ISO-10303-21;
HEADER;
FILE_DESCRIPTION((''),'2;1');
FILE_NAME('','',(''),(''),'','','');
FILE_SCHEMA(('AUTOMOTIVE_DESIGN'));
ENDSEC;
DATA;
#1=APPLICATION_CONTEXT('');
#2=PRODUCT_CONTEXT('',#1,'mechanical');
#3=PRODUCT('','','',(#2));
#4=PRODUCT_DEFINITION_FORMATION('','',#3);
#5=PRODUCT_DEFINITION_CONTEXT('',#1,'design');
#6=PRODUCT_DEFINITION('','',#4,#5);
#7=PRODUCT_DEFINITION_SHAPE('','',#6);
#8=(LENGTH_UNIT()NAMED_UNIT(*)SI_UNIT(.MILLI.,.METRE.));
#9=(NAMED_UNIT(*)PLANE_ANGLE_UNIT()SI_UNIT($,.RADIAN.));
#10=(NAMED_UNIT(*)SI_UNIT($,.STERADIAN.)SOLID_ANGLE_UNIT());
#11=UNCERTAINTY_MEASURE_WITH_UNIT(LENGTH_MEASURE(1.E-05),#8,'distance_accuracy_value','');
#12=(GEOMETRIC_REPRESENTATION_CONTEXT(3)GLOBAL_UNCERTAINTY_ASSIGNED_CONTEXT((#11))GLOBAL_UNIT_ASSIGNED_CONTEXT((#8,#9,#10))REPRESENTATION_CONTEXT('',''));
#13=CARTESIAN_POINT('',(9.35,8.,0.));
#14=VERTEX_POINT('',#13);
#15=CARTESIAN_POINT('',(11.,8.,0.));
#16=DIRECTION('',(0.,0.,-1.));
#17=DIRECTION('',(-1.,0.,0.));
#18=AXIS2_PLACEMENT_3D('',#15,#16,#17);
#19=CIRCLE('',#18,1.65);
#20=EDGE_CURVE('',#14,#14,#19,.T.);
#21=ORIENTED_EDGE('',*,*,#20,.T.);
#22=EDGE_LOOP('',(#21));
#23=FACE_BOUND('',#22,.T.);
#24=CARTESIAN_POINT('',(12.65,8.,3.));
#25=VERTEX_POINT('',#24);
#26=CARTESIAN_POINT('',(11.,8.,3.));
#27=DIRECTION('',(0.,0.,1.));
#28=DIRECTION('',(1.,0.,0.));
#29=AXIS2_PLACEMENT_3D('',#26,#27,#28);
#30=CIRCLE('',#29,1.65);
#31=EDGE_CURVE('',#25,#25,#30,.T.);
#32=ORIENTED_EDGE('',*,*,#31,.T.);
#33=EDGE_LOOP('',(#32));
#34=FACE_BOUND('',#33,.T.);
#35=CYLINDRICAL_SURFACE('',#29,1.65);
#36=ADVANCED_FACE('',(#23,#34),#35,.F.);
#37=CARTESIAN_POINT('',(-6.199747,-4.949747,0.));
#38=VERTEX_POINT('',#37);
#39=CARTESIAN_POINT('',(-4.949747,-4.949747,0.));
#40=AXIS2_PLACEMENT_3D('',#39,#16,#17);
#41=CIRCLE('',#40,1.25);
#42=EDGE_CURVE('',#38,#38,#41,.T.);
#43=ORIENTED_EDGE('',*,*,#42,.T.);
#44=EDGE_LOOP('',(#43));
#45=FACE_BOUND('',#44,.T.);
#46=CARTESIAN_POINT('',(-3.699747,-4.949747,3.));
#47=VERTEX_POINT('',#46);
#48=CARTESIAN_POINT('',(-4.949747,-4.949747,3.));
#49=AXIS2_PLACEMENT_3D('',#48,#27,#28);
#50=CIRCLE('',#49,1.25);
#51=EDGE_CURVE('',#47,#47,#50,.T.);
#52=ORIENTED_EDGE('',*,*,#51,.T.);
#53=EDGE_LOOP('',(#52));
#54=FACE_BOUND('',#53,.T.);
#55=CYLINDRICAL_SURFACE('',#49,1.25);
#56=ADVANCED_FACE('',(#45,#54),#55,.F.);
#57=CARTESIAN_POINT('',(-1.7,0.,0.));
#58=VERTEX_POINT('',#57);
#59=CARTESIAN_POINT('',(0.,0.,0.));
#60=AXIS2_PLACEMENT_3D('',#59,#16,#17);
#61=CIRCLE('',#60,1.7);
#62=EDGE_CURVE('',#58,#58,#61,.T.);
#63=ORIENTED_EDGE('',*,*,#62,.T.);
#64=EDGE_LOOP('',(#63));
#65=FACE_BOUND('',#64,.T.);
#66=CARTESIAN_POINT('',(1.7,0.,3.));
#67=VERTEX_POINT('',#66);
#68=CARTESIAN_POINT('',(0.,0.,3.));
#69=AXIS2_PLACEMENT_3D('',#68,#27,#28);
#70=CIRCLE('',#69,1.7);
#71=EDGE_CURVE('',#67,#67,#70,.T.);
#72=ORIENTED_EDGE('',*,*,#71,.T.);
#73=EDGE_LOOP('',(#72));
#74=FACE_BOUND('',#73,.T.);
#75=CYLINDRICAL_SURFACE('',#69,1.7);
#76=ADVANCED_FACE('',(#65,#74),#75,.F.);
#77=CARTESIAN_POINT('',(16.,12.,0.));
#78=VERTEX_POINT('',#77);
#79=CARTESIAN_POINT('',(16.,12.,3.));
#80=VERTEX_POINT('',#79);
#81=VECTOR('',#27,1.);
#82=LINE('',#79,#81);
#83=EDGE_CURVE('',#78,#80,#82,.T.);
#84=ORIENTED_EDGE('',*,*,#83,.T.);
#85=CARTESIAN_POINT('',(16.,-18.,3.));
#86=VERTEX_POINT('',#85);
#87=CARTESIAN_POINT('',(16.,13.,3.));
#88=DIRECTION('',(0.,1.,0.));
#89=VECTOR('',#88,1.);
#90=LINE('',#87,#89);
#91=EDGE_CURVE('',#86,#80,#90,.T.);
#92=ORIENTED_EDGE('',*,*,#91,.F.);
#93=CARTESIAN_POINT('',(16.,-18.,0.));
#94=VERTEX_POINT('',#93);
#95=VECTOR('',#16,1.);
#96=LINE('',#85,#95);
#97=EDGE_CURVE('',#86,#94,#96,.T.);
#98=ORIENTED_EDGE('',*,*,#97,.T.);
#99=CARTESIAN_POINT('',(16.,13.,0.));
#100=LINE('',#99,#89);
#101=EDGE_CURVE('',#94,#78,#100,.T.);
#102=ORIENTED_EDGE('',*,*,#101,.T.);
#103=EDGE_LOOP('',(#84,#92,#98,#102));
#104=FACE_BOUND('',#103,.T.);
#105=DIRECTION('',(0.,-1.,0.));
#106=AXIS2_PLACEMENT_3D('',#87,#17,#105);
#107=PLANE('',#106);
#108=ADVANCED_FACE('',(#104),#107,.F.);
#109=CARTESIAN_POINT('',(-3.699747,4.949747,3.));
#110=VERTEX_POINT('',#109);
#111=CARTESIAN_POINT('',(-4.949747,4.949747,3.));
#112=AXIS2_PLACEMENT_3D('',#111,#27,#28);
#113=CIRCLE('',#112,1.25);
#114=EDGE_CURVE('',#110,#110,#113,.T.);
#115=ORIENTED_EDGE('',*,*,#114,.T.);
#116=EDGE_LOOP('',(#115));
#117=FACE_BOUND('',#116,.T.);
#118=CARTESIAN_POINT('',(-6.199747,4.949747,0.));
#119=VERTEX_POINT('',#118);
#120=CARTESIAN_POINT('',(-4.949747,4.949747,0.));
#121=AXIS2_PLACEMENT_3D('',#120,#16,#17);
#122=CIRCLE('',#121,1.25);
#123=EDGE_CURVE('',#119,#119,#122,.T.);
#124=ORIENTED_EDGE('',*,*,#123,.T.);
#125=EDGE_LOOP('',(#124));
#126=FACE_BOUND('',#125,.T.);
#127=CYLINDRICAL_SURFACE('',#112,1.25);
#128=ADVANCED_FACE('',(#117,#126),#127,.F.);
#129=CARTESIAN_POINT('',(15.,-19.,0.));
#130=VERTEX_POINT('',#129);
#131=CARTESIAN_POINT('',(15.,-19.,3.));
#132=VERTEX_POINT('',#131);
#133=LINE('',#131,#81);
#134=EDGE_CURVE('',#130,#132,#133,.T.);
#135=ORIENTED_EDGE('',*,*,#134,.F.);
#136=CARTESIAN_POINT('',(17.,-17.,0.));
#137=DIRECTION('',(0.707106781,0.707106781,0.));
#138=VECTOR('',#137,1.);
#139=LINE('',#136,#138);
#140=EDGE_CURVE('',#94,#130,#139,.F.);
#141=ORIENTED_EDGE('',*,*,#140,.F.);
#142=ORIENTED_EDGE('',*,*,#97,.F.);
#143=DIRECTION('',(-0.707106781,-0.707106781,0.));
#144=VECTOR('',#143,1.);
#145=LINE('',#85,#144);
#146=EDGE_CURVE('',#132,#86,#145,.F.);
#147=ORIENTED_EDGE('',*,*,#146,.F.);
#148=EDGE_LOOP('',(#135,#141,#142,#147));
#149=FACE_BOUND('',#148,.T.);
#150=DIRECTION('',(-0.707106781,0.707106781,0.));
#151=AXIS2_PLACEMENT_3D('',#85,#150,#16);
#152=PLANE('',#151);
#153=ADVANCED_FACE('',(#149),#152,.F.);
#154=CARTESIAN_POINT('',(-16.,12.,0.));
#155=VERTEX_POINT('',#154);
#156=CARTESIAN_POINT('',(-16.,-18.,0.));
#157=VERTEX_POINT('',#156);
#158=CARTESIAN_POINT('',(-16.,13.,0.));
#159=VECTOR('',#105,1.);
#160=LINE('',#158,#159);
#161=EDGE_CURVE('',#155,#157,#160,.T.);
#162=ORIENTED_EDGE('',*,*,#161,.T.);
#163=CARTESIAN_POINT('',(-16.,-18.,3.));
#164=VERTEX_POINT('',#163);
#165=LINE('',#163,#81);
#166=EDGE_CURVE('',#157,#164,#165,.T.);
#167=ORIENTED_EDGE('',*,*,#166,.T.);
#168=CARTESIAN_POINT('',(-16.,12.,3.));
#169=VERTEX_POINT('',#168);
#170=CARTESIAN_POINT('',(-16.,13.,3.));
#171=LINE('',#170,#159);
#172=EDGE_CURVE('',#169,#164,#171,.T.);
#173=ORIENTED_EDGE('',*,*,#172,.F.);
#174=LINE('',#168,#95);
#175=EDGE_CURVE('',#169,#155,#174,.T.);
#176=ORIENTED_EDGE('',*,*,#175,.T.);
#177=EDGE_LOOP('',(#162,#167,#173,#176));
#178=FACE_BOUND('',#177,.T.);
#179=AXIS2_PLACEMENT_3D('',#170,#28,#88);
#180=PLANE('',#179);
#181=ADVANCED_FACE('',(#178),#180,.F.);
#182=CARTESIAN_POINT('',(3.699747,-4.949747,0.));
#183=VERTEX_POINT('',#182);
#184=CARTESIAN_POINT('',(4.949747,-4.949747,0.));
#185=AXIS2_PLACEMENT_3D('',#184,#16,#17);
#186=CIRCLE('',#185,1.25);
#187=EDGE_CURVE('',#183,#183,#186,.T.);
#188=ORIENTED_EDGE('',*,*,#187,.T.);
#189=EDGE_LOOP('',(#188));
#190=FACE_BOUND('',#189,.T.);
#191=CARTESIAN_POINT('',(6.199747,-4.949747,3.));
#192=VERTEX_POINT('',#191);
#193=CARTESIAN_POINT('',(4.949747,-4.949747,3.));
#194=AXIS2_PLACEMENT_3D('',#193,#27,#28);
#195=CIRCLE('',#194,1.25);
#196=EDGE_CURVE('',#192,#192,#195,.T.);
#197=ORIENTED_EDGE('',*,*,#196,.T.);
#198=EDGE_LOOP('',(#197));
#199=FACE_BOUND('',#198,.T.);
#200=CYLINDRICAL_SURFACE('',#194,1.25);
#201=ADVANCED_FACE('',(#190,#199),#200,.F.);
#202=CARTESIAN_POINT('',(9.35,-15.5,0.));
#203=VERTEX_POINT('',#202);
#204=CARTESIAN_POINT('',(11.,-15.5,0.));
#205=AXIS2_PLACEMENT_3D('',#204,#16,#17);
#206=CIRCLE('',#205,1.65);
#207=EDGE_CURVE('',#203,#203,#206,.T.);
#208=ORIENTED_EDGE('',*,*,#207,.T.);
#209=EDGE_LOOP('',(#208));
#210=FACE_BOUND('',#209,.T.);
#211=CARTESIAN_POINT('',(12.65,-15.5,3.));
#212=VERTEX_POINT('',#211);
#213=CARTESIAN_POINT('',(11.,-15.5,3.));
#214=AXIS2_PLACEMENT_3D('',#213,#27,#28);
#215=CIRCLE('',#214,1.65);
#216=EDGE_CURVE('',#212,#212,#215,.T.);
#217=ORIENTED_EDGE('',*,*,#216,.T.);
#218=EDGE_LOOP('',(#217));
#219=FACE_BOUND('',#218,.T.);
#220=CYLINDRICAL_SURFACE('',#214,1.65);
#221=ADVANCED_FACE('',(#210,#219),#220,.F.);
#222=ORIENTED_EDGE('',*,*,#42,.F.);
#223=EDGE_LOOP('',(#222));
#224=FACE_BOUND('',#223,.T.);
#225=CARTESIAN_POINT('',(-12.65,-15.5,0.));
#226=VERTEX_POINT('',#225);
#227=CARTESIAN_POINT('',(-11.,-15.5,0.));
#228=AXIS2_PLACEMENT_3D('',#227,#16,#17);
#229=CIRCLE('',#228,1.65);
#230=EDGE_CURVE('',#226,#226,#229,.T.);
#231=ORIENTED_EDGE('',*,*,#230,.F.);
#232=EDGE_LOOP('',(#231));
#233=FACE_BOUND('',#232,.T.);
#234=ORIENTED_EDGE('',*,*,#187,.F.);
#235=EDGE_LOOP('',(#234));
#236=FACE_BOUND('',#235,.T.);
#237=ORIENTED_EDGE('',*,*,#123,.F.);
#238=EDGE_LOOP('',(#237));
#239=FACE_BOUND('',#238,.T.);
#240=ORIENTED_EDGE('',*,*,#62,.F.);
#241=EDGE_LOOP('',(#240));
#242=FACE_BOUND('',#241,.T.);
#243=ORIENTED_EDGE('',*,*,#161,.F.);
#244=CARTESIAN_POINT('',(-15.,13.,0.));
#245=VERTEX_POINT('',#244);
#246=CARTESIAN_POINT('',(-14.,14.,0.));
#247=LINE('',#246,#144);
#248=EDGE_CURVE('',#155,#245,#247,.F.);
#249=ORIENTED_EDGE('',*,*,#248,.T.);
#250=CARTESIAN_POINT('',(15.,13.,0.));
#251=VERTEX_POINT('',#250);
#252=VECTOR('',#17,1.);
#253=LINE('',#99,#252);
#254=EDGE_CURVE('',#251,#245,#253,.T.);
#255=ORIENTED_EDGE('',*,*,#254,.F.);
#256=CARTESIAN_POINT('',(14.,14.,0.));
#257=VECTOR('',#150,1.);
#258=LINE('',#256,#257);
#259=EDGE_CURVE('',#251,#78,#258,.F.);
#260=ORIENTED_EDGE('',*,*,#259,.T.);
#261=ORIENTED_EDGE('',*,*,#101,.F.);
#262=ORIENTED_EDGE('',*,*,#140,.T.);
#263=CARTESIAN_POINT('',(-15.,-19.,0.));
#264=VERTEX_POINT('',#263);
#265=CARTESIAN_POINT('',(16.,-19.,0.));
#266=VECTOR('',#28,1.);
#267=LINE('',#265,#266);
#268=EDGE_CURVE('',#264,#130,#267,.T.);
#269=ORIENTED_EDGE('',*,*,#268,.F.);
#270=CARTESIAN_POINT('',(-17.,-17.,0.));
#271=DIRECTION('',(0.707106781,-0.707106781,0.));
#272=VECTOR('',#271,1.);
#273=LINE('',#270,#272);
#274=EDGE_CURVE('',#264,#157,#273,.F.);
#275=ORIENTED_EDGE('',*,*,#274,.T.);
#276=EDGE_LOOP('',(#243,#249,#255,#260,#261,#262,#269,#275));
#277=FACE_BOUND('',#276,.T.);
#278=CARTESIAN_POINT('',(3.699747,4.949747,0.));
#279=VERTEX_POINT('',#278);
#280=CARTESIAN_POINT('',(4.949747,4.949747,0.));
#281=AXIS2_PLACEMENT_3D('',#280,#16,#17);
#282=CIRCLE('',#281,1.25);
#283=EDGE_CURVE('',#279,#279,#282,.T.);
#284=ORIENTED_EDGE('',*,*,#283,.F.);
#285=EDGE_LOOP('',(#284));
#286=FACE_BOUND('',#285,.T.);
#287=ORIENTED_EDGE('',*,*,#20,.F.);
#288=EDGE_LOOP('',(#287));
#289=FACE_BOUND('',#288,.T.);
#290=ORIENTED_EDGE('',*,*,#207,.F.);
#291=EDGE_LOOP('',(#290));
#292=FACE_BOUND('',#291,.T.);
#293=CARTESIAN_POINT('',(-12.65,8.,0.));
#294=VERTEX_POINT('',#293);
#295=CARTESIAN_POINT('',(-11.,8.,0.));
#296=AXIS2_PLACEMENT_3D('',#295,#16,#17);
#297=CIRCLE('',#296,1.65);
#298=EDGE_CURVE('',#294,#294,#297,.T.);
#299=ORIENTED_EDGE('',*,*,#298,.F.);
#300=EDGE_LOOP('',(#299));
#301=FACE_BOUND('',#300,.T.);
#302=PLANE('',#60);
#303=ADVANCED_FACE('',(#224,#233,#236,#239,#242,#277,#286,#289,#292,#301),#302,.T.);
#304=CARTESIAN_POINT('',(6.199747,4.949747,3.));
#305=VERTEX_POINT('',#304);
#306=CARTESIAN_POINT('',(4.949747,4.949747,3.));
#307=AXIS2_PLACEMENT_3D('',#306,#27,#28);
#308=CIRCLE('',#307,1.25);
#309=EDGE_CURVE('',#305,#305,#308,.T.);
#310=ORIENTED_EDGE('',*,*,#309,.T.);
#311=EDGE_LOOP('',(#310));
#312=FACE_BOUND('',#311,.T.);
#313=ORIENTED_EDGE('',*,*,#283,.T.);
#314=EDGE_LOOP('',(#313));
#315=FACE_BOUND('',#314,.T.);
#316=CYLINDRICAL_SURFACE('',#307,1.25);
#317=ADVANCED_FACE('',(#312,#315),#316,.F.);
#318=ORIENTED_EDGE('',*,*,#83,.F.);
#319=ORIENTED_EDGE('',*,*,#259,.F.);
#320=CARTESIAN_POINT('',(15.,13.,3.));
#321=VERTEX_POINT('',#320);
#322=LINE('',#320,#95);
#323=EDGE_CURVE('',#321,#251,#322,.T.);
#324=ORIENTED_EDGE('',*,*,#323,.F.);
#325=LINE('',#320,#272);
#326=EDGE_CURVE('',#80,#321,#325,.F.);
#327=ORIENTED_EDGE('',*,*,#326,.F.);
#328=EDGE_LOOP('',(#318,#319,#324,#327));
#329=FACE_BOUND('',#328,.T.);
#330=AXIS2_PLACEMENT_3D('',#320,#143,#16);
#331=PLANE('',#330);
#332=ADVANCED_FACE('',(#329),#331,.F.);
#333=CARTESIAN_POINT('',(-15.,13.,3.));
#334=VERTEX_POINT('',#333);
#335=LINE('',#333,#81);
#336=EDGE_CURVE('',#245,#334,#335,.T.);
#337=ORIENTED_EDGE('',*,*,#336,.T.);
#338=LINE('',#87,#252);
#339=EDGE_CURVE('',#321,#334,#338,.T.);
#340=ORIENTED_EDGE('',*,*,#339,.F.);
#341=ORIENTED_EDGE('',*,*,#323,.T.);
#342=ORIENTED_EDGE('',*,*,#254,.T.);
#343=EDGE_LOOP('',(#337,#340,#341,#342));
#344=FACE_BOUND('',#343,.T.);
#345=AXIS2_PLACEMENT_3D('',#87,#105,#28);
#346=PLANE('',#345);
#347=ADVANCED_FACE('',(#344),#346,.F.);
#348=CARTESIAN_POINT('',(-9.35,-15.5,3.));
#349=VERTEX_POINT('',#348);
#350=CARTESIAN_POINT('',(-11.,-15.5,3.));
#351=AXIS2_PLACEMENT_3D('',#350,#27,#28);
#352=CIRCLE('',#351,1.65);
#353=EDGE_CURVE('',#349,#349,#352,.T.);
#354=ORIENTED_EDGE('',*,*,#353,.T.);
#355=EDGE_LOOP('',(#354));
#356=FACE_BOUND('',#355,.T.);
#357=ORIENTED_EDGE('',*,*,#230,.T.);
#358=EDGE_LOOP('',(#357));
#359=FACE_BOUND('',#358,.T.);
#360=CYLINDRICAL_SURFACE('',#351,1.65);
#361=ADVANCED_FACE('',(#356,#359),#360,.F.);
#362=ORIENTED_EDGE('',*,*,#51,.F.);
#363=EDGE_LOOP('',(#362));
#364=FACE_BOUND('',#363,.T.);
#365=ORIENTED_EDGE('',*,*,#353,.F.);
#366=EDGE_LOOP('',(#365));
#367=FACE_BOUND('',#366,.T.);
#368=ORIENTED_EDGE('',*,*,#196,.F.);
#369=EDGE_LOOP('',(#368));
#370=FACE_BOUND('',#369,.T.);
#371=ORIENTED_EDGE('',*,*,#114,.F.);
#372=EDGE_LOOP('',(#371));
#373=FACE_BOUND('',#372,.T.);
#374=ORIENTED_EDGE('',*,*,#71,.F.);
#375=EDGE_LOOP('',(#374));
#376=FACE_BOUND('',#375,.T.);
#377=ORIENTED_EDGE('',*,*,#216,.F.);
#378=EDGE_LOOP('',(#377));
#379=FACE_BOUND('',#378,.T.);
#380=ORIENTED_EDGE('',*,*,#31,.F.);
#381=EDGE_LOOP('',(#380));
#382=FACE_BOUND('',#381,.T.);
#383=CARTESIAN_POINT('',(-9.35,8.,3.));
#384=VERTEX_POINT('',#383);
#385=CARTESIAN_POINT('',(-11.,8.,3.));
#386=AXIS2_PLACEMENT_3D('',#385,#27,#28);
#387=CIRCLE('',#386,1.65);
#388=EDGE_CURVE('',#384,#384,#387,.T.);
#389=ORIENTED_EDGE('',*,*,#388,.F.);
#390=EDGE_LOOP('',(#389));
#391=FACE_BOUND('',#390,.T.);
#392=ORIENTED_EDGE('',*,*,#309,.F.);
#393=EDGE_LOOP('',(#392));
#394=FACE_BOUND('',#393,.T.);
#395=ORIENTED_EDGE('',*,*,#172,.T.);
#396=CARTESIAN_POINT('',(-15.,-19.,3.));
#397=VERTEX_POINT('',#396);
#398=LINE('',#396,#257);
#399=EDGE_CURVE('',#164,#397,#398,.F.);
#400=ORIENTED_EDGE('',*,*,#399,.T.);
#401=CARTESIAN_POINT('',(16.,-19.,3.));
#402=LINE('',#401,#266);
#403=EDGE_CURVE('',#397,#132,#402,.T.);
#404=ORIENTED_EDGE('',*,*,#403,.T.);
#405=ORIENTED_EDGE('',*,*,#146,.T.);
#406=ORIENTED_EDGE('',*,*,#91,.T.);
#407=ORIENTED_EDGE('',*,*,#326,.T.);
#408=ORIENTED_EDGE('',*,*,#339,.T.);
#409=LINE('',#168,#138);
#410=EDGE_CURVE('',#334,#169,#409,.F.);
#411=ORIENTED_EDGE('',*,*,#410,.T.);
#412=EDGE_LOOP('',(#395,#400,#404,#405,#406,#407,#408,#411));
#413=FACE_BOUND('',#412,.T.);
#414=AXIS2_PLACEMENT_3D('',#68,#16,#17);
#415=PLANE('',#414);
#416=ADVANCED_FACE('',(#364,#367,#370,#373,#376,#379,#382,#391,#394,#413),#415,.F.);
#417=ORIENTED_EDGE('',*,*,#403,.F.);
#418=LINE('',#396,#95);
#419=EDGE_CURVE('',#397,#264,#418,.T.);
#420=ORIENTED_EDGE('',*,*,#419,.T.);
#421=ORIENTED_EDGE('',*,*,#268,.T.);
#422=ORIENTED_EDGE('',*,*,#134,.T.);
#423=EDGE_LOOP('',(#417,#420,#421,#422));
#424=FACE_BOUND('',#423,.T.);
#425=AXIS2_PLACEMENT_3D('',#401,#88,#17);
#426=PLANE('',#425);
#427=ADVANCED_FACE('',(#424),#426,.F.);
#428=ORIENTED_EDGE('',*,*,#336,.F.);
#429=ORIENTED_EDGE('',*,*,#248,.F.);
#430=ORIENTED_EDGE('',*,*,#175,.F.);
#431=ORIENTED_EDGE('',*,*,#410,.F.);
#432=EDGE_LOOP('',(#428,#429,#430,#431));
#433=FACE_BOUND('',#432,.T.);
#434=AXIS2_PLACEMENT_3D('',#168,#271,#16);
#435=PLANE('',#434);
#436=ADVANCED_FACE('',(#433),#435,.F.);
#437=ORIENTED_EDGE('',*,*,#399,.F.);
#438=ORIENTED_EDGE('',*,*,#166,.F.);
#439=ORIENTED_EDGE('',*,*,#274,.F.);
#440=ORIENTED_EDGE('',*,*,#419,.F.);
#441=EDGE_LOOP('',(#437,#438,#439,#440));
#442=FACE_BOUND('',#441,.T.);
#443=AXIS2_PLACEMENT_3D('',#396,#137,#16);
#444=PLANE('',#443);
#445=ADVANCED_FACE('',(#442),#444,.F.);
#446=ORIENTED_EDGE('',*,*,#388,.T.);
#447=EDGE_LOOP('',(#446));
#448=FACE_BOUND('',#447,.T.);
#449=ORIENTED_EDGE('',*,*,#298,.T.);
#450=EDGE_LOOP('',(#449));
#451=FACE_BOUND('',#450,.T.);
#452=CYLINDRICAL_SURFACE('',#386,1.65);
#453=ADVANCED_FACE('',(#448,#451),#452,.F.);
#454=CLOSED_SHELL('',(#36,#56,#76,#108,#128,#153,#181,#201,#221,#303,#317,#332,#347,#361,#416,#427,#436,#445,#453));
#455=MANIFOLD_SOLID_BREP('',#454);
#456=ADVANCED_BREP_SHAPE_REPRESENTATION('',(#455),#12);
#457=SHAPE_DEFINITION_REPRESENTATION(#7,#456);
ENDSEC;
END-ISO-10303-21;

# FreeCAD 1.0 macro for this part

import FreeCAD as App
import Part
import Sketcher
Q = App.Units.Quantity


def edges_at(feature, points):
    """Names of the edges that pass closest to the given points."""
    edges = feature.Shape.Edges
    near = lambda p: min(range(len(edges)), key=lambda i: edges[i].distToShape(Part.Vertex(*p))[0])
    return sorted({f"Edge{near(p) + 1}" for p in points})


def add_polygon(sketch, points):
    """Adds a closed chain of lines whose ends are joined by coincident constraints."""
    first, n = sketch.GeometryCount, len(points)
    for a, b in zip(points, points[1:] + points[:1]):
        sketch.addGeometry(Part.LineSegment(App.Vector(*a, 0), App.Vector(*b, 0)), False)
    for i in range(n):
        sketch.addConstraint(Sketcher.Constraint("Coincident", first + i, 2, first + (i + 1) % n, 1))

doc = App.newDocument("Part")
body = doc.addObject("PartDesign::Body", "Body")

sketch1 = body.newObject("Sketcher::SketchObject", "Sketch")
sketch1.AttachmentSupport = (doc.getObject("XY_Plane"), [""])
sketch1.MapMode = "FlatFace"
add_polygon(sketch1, [(-16, 13), (-16, -19), (16, -19), (16, 13)])
sketch1.addConstraint([
    Sketcher.Constraint("Vertical", 0),
    Sketcher.Constraint("Horizontal", 1),
    Sketcher.Constraint("Vertical", 2),
    Sketcher.Constraint("Horizontal", 3),
    Sketcher.Constraint("Equal", 3, 0),
    Sketcher.Constraint("DistanceX", 1, 1, 1, 2, 32.0),
    Sketcher.Constraint("DistanceX", 0, 2, -1, 1, 16.0),
    Sketcher.Constraint("DistanceY", 0, 2, -1, 1, 19.0),
])
pad1 = body.newObject("PartDesign::Pad", "Pad")
pad1.Profile = sketch1
pad1.Length = 3

sketch2 = body.newObject("Sketcher::SketchObject", "Sketch001")
sketch2.AttachmentSupport = (doc.getObject("XY_Plane"), [""])
sketch2.MapMode = "FlatFace"
sketch2.AttachmentOffset = App.Placement(App.Vector(0, 0, 3), App.Rotation())
sketch2.addGeometry(Part.Circle(App.Vector(0, 0, 0), App.Vector(0, 0, 1), 1.7), False)
sketch2.addConstraint([
    Sketcher.Constraint("Coincident", 0, 3, -1, 1),
    Sketcher.Constraint("Diameter", 0, 3.4),
])
doc.recompute()
hole = body.newObject("PartDesign::Hole", "Hole")
hole.Profile = sketch2
hole.ThreadType = "None"
hole.Diameter = 3.4
hole.DepthType = "Dimension"
hole.Depth = 6
hole.DrillPoint = "Angled"
hole.DrillPointAngle = 118

sketch3 = body.newObject("Sketcher::SketchObject", "Sketch002")
sketch3.AttachmentSupport = (doc.getObject("YZ_Plane"), [""])
sketch3.MapMode = "FlatFace"
sketch3.AttachmentOffset = App.Placement(App.Vector(0, 0, -4.949747), App.Rotation())
add_polygon(sketch3, [(-4.9, -6.3), (-4.9, 3), (-6.2, 3), (-6.2, -5.5)])
sketch3.addGeometry(Part.LineSegment(App.Vector(-4.9, 3, 0), App.Vector(-4.9, -6.3, 0)), True)
sketch3.addConstraint([
    Sketcher.Constraint("Vertical", 0),
    Sketcher.Constraint("Horizontal", 1),
    Sketcher.Constraint("Vertical", 2),
    Sketcher.Constraint("Vertical", 4),
    Sketcher.Constraint("Coincident", 4, 1, 0, 2),
    Sketcher.Constraint("Equal", 0, 4),
    Sketcher.Constraint("Angle", 3, Q("-31 deg")),
    Sketcher.Constraint("DistanceY", 2, 2, 2, 1, 8.5),
    Sketcher.Constraint("DistanceY", -1, 1, 0, 2, 3.0),
    Sketcher.Constraint("DistanceX", 1, 2, 1, 1, 1.25),
    Sketcher.Constraint("DistanceX", 0, 2, -1, 1, 4.949747),
])
groove = body.newObject("PartDesign::Groove", "Groove")
groove.Profile = sketch3
groove.ReferenceAxis = (sketch3, ["Axis0"])
groove.Angle = 360
doc.recompute()

polarpattern = body.newObject("PartDesign::PolarPattern", "PolarPattern")
polarpattern.Originals = [groove]
polarpattern.Axis = (doc.getObject("Z_Axis"), [""])
polarpattern.Angle = 360
polarpattern.Occurrences = 4
body.Tip = polarpattern

sketch4 = body.newObject("Sketcher::SketchObject", "Sketch003")
sketch4.AttachmentSupport = (doc.getObject("XY_Plane"), [""])
sketch4.MapMode = "FlatFace"
sketch4.AttachmentOffset = App.Placement(App.Vector(0, 0, 3), App.Rotation())
sketch4.addGeometry([
    Part.Circle(App.Vector(-11, 8, 0), App.Vector(0, 0, 1), 1.6),
    Part.Circle(App.Vector(11, 8, 0), App.Vector(0, 0, 1), 1.6),
    Part.Circle(App.Vector(-11, -15.5, 0), App.Vector(0, 0, 1), 1.6),
    Part.Circle(App.Vector(11, -15.5, 0), App.Vector(0, 0, 1), 1.6),
], False)
sketch4.addConstraint([
    Sketcher.Constraint("Equal", 0, 1),
    Sketcher.Constraint("Equal", 1, 2),
    Sketcher.Constraint("Equal", 2, 3),
    Sketcher.Constraint("Symmetric", 0, 3, 1, 3, -2),
    Sketcher.Constraint("Symmetric", 2, 3, 3, 3, -2),
    Sketcher.Constraint("Vertical", 0, 3, 2, 3),
    Sketcher.Constraint("Diameter", 0, 3.3),
    Sketcher.Constraint("DistanceX", 0, 3, -1, 1, 11.0),
    Sketcher.Constraint("DistanceY", -1, 1, 0, 3, 8.0),
    Sketcher.Constraint("DistanceY", 2, 3, -1, 1, 15.5),
])
doc.recompute()
hole2 = body.newObject("PartDesign::Hole", "Hole001")
hole2.Profile = sketch4
hole2.ThreadType = "None"
hole2.Diameter = 3.3
hole2.DepthType = "ThroughAll"
doc.recompute()

chamfer = body.newObject("PartDesign::Chamfer", "Chamfer")
chamfer.Base = (hole2, edges_at(hole2, [
    (-16, 13, 1.5),
    (16, 13, 1.5),
    (16, -19, 1.5),
    (-16, -19, 1.5),
]))
chamfer.Size = 1

doc.recompute()
